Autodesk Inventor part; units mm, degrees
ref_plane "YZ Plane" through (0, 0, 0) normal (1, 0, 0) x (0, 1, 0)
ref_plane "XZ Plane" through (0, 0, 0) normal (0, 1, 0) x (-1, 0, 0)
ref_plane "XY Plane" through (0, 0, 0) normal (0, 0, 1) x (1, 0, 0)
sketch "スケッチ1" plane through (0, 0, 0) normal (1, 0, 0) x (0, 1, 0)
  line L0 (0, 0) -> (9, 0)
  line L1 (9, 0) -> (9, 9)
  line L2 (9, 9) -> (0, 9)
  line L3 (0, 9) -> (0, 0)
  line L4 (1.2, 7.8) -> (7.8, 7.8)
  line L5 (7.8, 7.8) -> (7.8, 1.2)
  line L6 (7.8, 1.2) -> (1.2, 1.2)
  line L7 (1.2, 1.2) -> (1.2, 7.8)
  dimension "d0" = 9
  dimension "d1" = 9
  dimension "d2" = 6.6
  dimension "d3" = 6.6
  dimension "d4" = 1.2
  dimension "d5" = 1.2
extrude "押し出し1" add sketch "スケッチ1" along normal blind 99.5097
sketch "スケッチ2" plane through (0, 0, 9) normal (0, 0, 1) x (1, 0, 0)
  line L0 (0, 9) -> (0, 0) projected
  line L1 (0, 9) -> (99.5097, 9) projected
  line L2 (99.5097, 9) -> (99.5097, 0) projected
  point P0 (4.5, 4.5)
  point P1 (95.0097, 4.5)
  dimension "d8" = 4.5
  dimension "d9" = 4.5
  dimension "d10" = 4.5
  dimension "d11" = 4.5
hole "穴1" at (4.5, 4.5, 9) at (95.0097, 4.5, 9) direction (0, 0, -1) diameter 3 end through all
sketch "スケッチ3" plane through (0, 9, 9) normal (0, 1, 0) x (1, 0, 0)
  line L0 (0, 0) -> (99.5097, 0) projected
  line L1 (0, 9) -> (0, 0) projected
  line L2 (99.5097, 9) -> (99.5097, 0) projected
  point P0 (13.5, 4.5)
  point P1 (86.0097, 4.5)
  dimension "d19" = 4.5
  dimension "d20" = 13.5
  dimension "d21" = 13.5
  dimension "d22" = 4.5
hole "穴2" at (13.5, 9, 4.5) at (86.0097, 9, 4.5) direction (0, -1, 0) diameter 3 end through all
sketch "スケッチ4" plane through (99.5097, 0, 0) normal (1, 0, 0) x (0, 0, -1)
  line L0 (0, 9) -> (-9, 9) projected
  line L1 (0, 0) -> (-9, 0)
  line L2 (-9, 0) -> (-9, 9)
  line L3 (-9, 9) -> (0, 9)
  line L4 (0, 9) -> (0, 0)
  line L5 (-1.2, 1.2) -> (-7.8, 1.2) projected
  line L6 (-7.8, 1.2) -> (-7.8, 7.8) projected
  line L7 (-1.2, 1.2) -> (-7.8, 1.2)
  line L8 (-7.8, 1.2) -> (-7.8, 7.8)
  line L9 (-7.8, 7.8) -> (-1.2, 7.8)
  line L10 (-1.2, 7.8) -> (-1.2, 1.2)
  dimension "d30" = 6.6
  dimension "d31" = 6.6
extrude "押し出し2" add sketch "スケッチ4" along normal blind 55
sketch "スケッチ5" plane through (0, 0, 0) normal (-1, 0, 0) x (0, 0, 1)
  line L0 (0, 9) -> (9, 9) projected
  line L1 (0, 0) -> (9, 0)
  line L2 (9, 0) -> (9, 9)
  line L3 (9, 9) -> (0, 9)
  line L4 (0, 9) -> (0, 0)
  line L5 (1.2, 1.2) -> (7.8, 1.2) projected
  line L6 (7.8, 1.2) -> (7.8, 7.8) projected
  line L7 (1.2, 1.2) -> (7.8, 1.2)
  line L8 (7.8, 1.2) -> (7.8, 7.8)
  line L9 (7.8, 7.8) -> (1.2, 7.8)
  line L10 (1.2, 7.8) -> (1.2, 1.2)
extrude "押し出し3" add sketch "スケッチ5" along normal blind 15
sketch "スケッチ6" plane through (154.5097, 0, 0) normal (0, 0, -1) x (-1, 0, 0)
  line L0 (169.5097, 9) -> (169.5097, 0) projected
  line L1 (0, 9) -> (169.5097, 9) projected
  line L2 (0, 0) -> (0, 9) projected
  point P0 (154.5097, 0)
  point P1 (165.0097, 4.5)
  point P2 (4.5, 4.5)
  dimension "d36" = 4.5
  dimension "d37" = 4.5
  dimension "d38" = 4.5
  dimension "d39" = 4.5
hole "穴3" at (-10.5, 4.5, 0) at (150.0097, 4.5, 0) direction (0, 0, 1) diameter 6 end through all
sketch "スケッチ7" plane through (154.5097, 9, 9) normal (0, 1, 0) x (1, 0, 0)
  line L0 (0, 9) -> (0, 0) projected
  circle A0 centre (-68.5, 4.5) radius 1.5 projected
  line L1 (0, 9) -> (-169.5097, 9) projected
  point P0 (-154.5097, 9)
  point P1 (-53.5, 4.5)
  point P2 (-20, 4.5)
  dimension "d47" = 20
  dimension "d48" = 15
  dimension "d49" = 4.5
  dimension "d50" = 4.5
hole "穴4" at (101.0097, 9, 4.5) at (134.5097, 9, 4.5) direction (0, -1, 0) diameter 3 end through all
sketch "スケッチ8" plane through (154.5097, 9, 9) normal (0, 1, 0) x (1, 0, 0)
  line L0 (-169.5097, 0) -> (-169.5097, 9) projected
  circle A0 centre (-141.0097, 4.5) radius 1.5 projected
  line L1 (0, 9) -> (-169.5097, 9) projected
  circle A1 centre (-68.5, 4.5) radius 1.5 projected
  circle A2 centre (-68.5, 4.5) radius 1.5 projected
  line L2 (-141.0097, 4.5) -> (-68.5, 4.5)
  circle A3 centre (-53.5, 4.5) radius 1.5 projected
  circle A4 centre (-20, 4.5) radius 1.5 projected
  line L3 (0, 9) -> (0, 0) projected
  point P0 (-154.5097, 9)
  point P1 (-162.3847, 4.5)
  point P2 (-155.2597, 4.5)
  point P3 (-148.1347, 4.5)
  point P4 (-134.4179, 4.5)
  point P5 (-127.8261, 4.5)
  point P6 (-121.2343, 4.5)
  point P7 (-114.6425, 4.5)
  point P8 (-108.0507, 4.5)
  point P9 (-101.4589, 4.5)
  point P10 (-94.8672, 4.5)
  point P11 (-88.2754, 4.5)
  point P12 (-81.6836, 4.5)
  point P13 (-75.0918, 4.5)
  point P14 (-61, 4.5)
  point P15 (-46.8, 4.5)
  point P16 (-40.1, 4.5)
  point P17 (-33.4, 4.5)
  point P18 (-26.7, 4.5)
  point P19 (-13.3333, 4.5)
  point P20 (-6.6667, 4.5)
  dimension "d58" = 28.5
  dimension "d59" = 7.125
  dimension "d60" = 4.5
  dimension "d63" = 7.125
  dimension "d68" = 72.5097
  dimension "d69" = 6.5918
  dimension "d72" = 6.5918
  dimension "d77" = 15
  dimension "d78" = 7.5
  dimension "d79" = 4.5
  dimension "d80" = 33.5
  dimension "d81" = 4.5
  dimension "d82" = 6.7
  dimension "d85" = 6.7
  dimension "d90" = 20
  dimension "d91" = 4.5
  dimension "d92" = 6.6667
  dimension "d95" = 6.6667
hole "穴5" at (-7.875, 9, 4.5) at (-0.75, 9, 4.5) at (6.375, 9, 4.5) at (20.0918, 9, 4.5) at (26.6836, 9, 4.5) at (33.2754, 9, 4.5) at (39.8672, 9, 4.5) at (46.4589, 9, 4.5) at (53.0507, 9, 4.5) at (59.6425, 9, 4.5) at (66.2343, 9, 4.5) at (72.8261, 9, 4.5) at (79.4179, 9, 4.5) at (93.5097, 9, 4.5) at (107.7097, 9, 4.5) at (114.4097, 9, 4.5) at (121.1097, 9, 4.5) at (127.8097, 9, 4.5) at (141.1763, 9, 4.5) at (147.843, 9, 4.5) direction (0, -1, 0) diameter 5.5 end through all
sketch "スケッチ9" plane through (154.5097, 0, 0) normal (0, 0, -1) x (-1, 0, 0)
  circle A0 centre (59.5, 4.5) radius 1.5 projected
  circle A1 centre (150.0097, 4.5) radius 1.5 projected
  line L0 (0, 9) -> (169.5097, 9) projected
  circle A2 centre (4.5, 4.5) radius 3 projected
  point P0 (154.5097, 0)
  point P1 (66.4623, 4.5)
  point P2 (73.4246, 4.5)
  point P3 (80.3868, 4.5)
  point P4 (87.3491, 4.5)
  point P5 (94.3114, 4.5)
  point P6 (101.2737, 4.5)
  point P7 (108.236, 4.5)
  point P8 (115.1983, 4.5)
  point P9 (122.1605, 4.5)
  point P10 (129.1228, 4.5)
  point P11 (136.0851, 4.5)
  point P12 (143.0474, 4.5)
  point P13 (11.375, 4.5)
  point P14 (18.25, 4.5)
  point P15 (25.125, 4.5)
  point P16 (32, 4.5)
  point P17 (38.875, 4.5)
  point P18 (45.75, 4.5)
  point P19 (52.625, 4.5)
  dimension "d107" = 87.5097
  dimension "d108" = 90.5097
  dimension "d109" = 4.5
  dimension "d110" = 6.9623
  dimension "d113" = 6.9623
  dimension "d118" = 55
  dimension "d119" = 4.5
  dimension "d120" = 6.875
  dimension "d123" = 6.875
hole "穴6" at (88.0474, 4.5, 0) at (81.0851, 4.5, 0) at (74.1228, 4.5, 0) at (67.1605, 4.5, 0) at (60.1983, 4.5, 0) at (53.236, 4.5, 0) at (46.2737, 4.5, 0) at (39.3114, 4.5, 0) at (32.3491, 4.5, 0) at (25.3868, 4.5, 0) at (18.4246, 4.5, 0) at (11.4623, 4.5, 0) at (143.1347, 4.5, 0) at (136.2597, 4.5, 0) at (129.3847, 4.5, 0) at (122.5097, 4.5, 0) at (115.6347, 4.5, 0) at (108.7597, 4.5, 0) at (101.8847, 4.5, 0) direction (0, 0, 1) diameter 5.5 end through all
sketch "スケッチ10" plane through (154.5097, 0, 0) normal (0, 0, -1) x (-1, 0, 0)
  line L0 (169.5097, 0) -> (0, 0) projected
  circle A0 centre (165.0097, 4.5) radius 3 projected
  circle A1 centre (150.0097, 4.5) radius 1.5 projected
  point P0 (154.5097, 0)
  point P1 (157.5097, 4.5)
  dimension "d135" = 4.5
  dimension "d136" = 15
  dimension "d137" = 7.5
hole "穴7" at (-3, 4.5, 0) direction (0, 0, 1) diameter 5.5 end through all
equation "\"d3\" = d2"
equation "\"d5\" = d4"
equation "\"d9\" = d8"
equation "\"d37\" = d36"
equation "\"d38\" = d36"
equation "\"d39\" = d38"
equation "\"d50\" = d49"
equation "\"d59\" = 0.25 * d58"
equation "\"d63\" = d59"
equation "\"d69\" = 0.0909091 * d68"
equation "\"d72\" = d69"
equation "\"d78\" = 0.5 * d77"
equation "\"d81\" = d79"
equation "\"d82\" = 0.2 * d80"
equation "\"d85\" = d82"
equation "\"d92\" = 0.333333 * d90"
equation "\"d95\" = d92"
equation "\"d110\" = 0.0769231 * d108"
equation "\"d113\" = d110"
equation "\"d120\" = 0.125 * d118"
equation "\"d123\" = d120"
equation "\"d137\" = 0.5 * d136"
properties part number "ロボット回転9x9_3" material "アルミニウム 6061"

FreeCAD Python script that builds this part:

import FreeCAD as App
import Part
import Sketcher

V = App.Vector
Q = App.Units.Quantity

doc = App.newDocument("Part")
body = doc.addObject("PartDesign::Body", "Body")

# Sketch on YZ plane
sketch1 = body.newObject("Sketcher::SketchObject", "Sketch")
sketch1.AttachmentSupport = (doc.getObject("YZ_Plane"), [""])
sketch1.MapMode = "FlatFace"
sketch1.addGeometry([
    Part.LineSegment(V(0, 9, 0), V(0, 0, 0)),  # 0
    Part.LineSegment(V(0, 0, 0), V(9, 0, 0)),  # 1
    Part.LineSegment(V(9, 0, 0), V(9, 9, 0)),  # 2
    Part.LineSegment(V(9, 9, 0), V(0, 9, 0)),  # 3
    Part.LineSegment(V(1.2, 1.2, 0), V(1.2, 7.8, 0)),  # 4
    Part.LineSegment(V(1.2, 7.8, 0), V(7.8, 7.8, 0)),  # 5
    Part.LineSegment(V(7.8, 7.8, 0), V(7.8, 1.2, 0)),  # 6
    Part.LineSegment(V(7.8, 1.2, 0), V(1.2, 1.2, 0)),  # 7
], False)
sketch1.addConstraint([
    Sketcher.Constraint("Coincident", 0, 2, 1, 1),
    Sketcher.Constraint("Coincident", 1, 2, 2, 1),
    Sketcher.Constraint("Coincident", 2, 2, 3, 1),
    Sketcher.Constraint("Coincident", 3, 2, 0, 1),
    Sketcher.Constraint("Coincident", 4, 2, 5, 1),
    Sketcher.Constraint("Coincident", 5, 2, 6, 1),
    Sketcher.Constraint("Coincident", 6, 2, 7, 1),
    Sketcher.Constraint("Coincident", 7, 2, 4, 1),
    Sketcher.Constraint("Vertical", 0),
    Sketcher.Constraint("Horizontal", 1),
    Sketcher.Constraint("Vertical", 2),
    Sketcher.Constraint("Horizontal", 3),
    Sketcher.Constraint("Vertical", 4),
    Sketcher.Constraint("Horizontal", 5),
    Sketcher.Constraint("Vertical", 6),
    Sketcher.Constraint("Horizontal", 7),
    Sketcher.Constraint("Coincident", 0, 2, -1, 1),
    Sketcher.Constraint("Equal", 3, 0),
    Sketcher.Constraint("Equal", 7, 4),
    Sketcher.Constraint("DistanceX", 1, 1, 1, 2, Q("9 mm")),
    Sketcher.Constraint("DistanceX", 5, 1, 5, 2, Q("6.6 mm")),
    Sketcher.Constraint("DistanceX", -1, 1, 4, 2, Q("1.2 mm")),
    Sketcher.Constraint("DistanceY", -1, 1, 6, 2, Q("1.2 mm")),
])
pad1 = body.newObject("PartDesign::Pad", "Pad")
pad1.Profile = sketch1
pad1.Length = 99.5097

# Sketch on XY plane
sketch2 = body.newObject("Sketcher::SketchObject", "Sketch001")
sketch2.AttachmentSupport = (doc.getObject("XY_Plane"), [""])
sketch2.MapMode = "FlatFace"
sketch2.AttachmentOffset = App.Placement(V(0, 0, 9), App.Rotation())
sketch2.addGeometry([
    Part.Circle(V(4.5, 4.5, 0), V(0, 0, 1), 1.5),
    Part.Circle(V(95.0097, 4.5, 0), V(0, 0, 1), 1.5),
], False)
sketch2.addConstraint([
    Sketcher.Constraint("Equal", 0, 1),
    Sketcher.Constraint("Horizontal", 0, 3, 1, 3),
    Sketcher.Constraint("Diameter", 0, Q("3 mm")),
    Sketcher.Constraint("DistanceX", -1, 1, 0, 3, Q("4.5 mm")),
    Sketcher.Constraint("DistanceY", -1, 1, 0, 3, Q("4.5 mm")),
    Sketcher.Constraint("DistanceX", -1, 1, 1, 3, Q("95.0097 mm")),
])
doc.recompute()
hole = body.newObject("PartDesign::Hole", "Hole")
hole.Profile = sketch2
hole.ThreadType = "None"
hole.Diameter = 3
hole.DepthType = "ThroughAll"

# Sketch on XZ plane
sketch3 = body.newObject("Sketcher::SketchObject", "Sketch002")
sketch3.AttachmentSupport = (doc.getObject("XZ_Plane"), [""])
sketch3.MapMode = "FlatFace"
sketch3.AttachmentOffset = App.Placement(V(0, 0, -9), App.Rotation())
sketch3.addGeometry([
    Part.Circle(V(13.5, 4.5, 0), V(0, 0, 1), 1.5),
    Part.Circle(V(86.0097, 4.5, 0), V(0, 0, 1), 1.5),
], False)
sketch3.addConstraint([
    Sketcher.Constraint("Equal", 0, 1),
    Sketcher.Constraint("Horizontal", 0, 3, 1, 3),
    Sketcher.Constraint("Diameter", 0, Q("3 mm")),
    Sketcher.Constraint("DistanceX", -1, 1, 0, 3, Q("13.5 mm")),
    Sketcher.Constraint("DistanceY", -1, 1, 0, 3, Q("4.5 mm")),
    Sketcher.Constraint("DistanceX", -1, 1, 1, 3, Q("86.0097 mm")),
])
doc.recompute()
hole2 = body.newObject("PartDesign::Hole", "Hole001")
hole2.Profile = sketch3
hole2.ThreadType = "None"
hole2.Diameter = 3
hole2.DepthType = "ThroughAll"
hole2.Reversed = True

# Sketch on YZ plane
sketch4 = body.newObject("Sketcher::SketchObject", "Sketch003")
sketch4.AttachmentSupport = (doc.getObject("YZ_Plane"), [""])
sketch4.MapMode = "FlatFace"
sketch4.AttachmentOffset = App.Placement(V(0, 0, 99.5097), App.Rotation())
sketch4.addGeometry([
    Part.LineSegment(V(0, 0, 0), V(9, 0, 0)),  # 0
    Part.LineSegment(V(9, 0, 0), V(9, 9, 0)),  # 1
    Part.LineSegment(V(9, 9, 0), V(0, 9, 0)),  # 2
    Part.LineSegment(V(0, 9, 0), V(0, 0, 0)),  # 3
    Part.LineSegment(V(7.8, 1.2, 0), V(1.2, 1.2, 0)),  # 4
    Part.LineSegment(V(1.2, 1.2, 0), V(1.2, 7.8, 0)),  # 5
    Part.LineSegment(V(1.2, 7.8, 0), V(7.8, 7.8, 0)),  # 6
    Part.LineSegment(V(7.8, 7.8, 0), V(7.8, 1.2, 0)),  # 7
], False)
sketch4.addConstraint([
    Sketcher.Constraint("Coincident", 0, 2, 1, 1),
    Sketcher.Constraint("Coincident", 1, 2, 2, 1),
    Sketcher.Constraint("Coincident", 2, 2, 3, 1),
    Sketcher.Constraint("Coincident", 3, 2, 0, 1),
    Sketcher.Constraint("Coincident", 4, 2, 5, 1),
    Sketcher.Constraint("Coincident", 5, 2, 6, 1),
    Sketcher.Constraint("Coincident", 6, 2, 7, 1),
    Sketcher.Constraint("Coincident", 7, 2, 4, 1),
    Sketcher.Constraint("Horizontal", 0),
    Sketcher.Constraint("Vertical", 1),
    Sketcher.Constraint("Horizontal", 2),
    Sketcher.Constraint("Vertical", 3),
    Sketcher.Constraint("Horizontal", 4),
    Sketcher.Constraint("Vertical", 5),
    Sketcher.Constraint("Horizontal", 6),
    Sketcher.Constraint("Vertical", 7),
    Sketcher.Constraint("Coincident", 3, 2, -1, 1),
    Sketcher.Constraint("Equal", 2, 1),
    Sketcher.Constraint("Equal", 6, 5),
    Sketcher.Constraint("DistanceX", 4, 2, 4, 1, Q("6.6 mm")),
    Sketcher.Constraint("DistanceX", 0, 1, 0, 2, Q("9 mm")),
    Sketcher.Constraint("DistanceX", -1, 1, 4, 2, Q("1.2 mm")),
    Sketcher.Constraint("DistanceY", -1, 1, 4, 2, Q("1.2 mm")),
])
pad2 = body.newObject("PartDesign::Pad", "Pad001")
pad2.Profile = sketch4
pad2.Length = 55

# Sketch on YZ plane
sketch5 = body.newObject("Sketcher::SketchObject", "Sketch004")
sketch5.AttachmentSupport = (doc.getObject("YZ_Plane"), [""])
sketch5.MapMode = "FlatFace"
sketch5.addGeometry([
    Part.LineSegment(V(9, 9, 0), V(9, 0, 0)),  # 0
    Part.LineSegment(V(9, 0, 0), V(0, 0, 0)),  # 1
    Part.LineSegment(V(0, 0, 0), V(0, 9, 0)),  # 2
    Part.LineSegment(V(0, 9, 0), V(9, 9, 0)),  # 3
    Part.LineSegment(V(1.2, 7.8, 0), V(1.2, 1.2, 0)),  # 4
    Part.LineSegment(V(1.2, 1.2, 0), V(7.8, 1.2, 0)),  # 5
    Part.LineSegment(V(7.8, 1.2, 0), V(7.8, 7.8, 0)),  # 6
    Part.LineSegment(V(7.8, 7.8, 0), V(1.2, 7.8, 0)),  # 7
], False)
sketch5.addConstraint([
    Sketcher.Constraint("Coincident", 0, 2, 1, 1),
    Sketcher.Constraint("Coincident", 1, 2, 2, 1),
    Sketcher.Constraint("Coincident", 2, 2, 3, 1),
    Sketcher.Constraint("Coincident", 3, 2, 0, 1),
    Sketcher.Constraint("Coincident", 4, 2, 5, 1),
    Sketcher.Constraint("Coincident", 5, 2, 6, 1),
    Sketcher.Constraint("Coincident", 6, 2, 7, 1),
    Sketcher.Constraint("Coincident", 7, 2, 4, 1),
    Sketcher.Constraint("Vertical", 0),
    Sketcher.Constraint("Horizontal", 1),
    Sketcher.Constraint("Vertical", 2),
    Sketcher.Constraint("Horizontal", 3),
    Sketcher.Constraint("Vertical", 4),
    Sketcher.Constraint("Horizontal", 5),
    Sketcher.Constraint("Vertical", 6),
    Sketcher.Constraint("Horizontal", 7),
    Sketcher.Constraint("Coincident", 1, 2, -1, 1),
    Sketcher.Constraint("Equal", 3, 0),
    Sketcher.Constraint("Equal", 7, 4),
    Sketcher.Constraint("DistanceX", 1, 2, 1, 1, Q("9 mm")),
    Sketcher.Constraint("DistanceX", 5, 1, 5, 2, Q("6.6 mm")),
    Sketcher.Constraint("DistanceX", -1, 1, 4, 2, Q("1.2 mm")),
    Sketcher.Constraint("DistanceY", -1, 1, 4, 2, Q("1.2 mm")),
])
pad3 = body.newObject("PartDesign::Pad", "Pad002")
pad3.Profile = sketch5
pad3.Length = 15
pad3.Reversed = True

# Sketch on XY plane
sketch6 = body.newObject("Sketcher::SketchObject", "Sketch005")
sketch6.AttachmentSupport = (doc.getObject("XY_Plane"), [""])
sketch6.MapMode = "FlatFace"
sketch6.addGeometry([
    Part.Circle(V(-10.5, 4.5, 0), V(0, 0, 1), 3),
    Part.Circle(V(150.0097, 4.5, 0), V(0, 0, 1), 3),
], False)
sketch6.addConstraint([
    Sketcher.Constraint("Equal", 0, 1),
    Sketcher.Constraint("Horizontal", 0, 3, 1, 3),
    Sketcher.Constraint("Diameter", 0, Q("6 mm")),
    Sketcher.Constraint("DistanceX", 0, 3, -1, 1, Q("10.5 mm")),
    Sketcher.Constraint("DistanceY", -1, 1, 0, 3, Q("4.5 mm")),
    Sketcher.Constraint("DistanceX", -1, 1, 1, 3, Q("150.0097 mm")),
])
doc.recompute()
hole3 = body.newObject("PartDesign::Hole", "Hole002")
hole3.Profile = sketch6
hole3.ThreadType = "None"
hole3.Diameter = 6
hole3.DepthType = "ThroughAll"
hole3.Reversed = True

# Sketch on XZ plane
sketch7 = body.newObject("Sketcher::SketchObject", "Sketch006")
sketch7.AttachmentSupport = (doc.getObject("XZ_Plane"), [""])
sketch7.MapMode = "FlatFace"
sketch7.AttachmentOffset = App.Placement(V(0, 0, -9), App.Rotation())
sketch7.addGeometry([
    Part.Circle(V(101.0097, 4.5, 0), V(0, 0, 1), 1.5),
    Part.Circle(V(134.5097, 4.5, 0), V(0, 0, 1), 1.5),
], False)
sketch7.addConstraint([
    Sketcher.Constraint("Equal", 0, 1),
    Sketcher.Constraint("Horizontal", 0, 3, 1, 3),
    Sketcher.Constraint("Diameter", 0, Q("3 mm")),
    Sketcher.Constraint("DistanceY", -1, 1, 0, 3, Q("4.5 mm")),
    Sketcher.Constraint("DistanceX", 0, 3, 1, 3, Q("33.5 mm")),
    Sketcher.Constraint("DistanceX", -1, 1, 0, 3, Q("101.0097 mm")),
])
doc.recompute()
hole4 = body.newObject("PartDesign::Hole", "Hole003")
hole4.Profile = sketch7
hole4.ThreadType = "None"
hole4.Diameter = 3
hole4.DepthType = "ThroughAll"
hole4.Reversed = True

# Sketch on XZ plane
sketch8 = body.newObject("Sketcher::SketchObject", "Sketch007")
sketch8.AttachmentSupport = (doc.getObject("XZ_Plane"), [""])
sketch8.MapMode = "FlatFace"
sketch8.AttachmentOffset = App.Placement(V(0, 0, -9), App.Rotation())
sketch8.addGeometry([
    Part.Circle(V(-7.875, 4.5, 0), V(0, 0, 1), 2.75),  # 0
    Part.Circle(V(-0.75, 4.5, 0), V(0, 0, 1), 2.75),  # 1
    Part.Circle(V(6.375, 4.5, 0), V(0, 0, 1), 2.75),  # 2
    Part.Circle(V(20.0918, 4.5, 0), V(0, 0, 1), 2.75),  # 3
    Part.Circle(V(26.6836, 4.5, 0), V(0, 0, 1), 2.75),  # 4
    Part.Circle(V(33.2754, 4.5, 0), V(0, 0, 1), 2.75),  # 5
    Part.Circle(V(39.8672, 4.5, 0), V(0, 0, 1), 2.75),  # 6
    Part.Circle(V(46.4589, 4.5, 0), V(0, 0, 1), 2.75),  # 7
    Part.Circle(V(53.0507, 4.5, 0), V(0, 0, 1), 2.75),  # 8
    Part.Circle(V(59.6425, 4.5, 0), V(0, 0, 1), 2.75),  # 9
    Part.Circle(V(66.2343, 4.5, 0), V(0, 0, 1), 2.75),  # 10
    Part.Circle(V(72.8261, 4.5, 0), V(0, 0, 1), 2.75),  # 11
    Part.Circle(V(79.4179, 4.5, 0), V(0, 0, 1), 2.75),  # 12
    Part.Circle(V(93.5097, 4.5, 0), V(0, 0, 1), 2.75),  # 13
    Part.Circle(V(107.7097, 4.5, 0), V(0, 0, 1), 2.75),  # 14
    Part.Circle(V(114.4097, 4.5, 0), V(0, 0, 1), 2.75),  # 15
    Part.Circle(V(121.1097, 4.5, 0), V(0, 0, 1), 2.75),  # 16
    Part.Circle(V(127.8097, 4.5, 0), V(0, 0, 1), 2.75),  # 17
    Part.Circle(V(141.1763, 4.5, 0), V(0, 0, 1), 2.75),  # 18
    Part.Circle(V(147.843, 4.5, 0), V(0, 0, 1), 2.75),  # 19
], False)
sketch8.addConstraint([
    Sketcher.Constraint("Equal", 0, 1),
    Sketcher.Constraint("Equal", 1, 2),
    Sketcher.Constraint("Equal", 2, 3),
    Sketcher.Constraint("Equal", 3, 4),
    Sketcher.Constraint("Equal", 4, 5),
    Sketcher.Constraint("Equal", 5, 6),
    Sketcher.Constraint("Equal", 6, 7),
    Sketcher.Constraint("Equal", 7, 8),
    Sketcher.Constraint("Equal", 8, 9),
    Sketcher.Constraint("Equal", 9, 10),
    Sketcher.Constraint("Equal", 10, 11),
    Sketcher.Constraint("Equal", 11, 12),
    Sketcher.Constraint("Equal", 12, 13),
    Sketcher.Constraint("Equal", 13, 14),
    Sketcher.Constraint("Equal", 14, 15),
    Sketcher.Constraint("Equal", 15, 16),
    Sketcher.Constraint("Equal", 16, 17),
    Sketcher.Constraint("Equal", 17, 18),
    Sketcher.Constraint("Equal", 18, 19),
    Sketcher.Constraint("Horizontal", 0, 3, 1, 3),
    Sketcher.Constraint("Horizontal", 1, 3, 2, 3),
    Sketcher.Constraint("Horizontal", 2, 3, 3, 3),
    Sketcher.Constraint("Horizontal", 3, 3, 4, 3),
    Sketcher.Constraint("Horizontal", 4, 3, 5, 3),
    Sketcher.Constraint("Horizontal", 5, 3, 6, 3),
    Sketcher.Constraint("Horizontal", 6, 3, 7, 3),
    Sketcher.Constraint("Horizontal", 7, 3, 8, 3),
    Sketcher.Constraint("Horizontal", 8, 3, 9, 3),
    Sketcher.Constraint("Horizontal", 9, 3, 10, 3),
    Sketcher.Constraint("Horizontal", 10, 3, 11, 3),
    Sketcher.Constraint("Horizontal", 11, 3, 12, 3),
    Sketcher.Constraint("Horizontal", 12, 3, 13, 3),
    Sketcher.Constraint("Horizontal", 13, 3, 14, 3),
    Sketcher.Constraint("Horizontal", 14, 3, 15, 3),
    Sketcher.Constraint("Horizontal", 15, 3, 16, 3),
    Sketcher.Constraint("Horizontal", 16, 3, 17, 3),
    Sketcher.Constraint("Horizontal", 17, 3, 18, 3),
    Sketcher.Constraint("Horizontal", 18, 3, 19, 3),
    Sketcher.Constraint("Diameter", 0, Q("5.5 mm")),
    Sketcher.Constraint("DistanceY", -1, 1, 0, 3, Q("4.5 mm")),
    Sketcher.Constraint("DistanceX", 13, 3, 14, 3, Q("14.2 mm")),
    Sketcher.Constraint("DistanceX", 14, 3, 15, 3, Q("6.7 mm")),
    Sketcher.Constraint("DistanceX", 15, 3, 16, 3, Q("6.7 mm")),
    Sketcher.Constraint("DistanceX", 16, 3, 17, 3, Q("6.7 mm")),
    Sketcher.Constraint("DistanceX", 1, 3, -1, 1, Q("0.75 mm")),
    Sketcher.Constraint("DistanceX", 0, 3, 2, 3, Q("14.25 mm")),
    Sketcher.Constraint("DistanceX", 0, 3, -1, 1, Q("7.875 mm")),
    Sketcher.Constraint("DistanceX", -1, 1, 7, 3, Q("46.459 mm")),
    Sketcher.Constraint("DistanceX", -1, 1, 11, 3, Q("72.826 mm")),
    Sketcher.Constraint("DistanceX", -1, 1, 12, 3, Q("79.418 mm")),
    Sketcher.Constraint("DistanceX", -1, 1, 19, 3, Q("147.843 mm")),
    Sketcher.Constraint("DistanceX", 3, 3, 7, 3, Q("26.367 mm")),
    Sketcher.Constraint("DistanceX", 4, 3, 8, 3, Q("26.367 mm")),
    Sketcher.Constraint("DistanceX", 3, 3, 8, 3, Q("32.959 mm")),
    Sketcher.Constraint("DistanceX", 5, 3, 9, 3, Q("26.367 mm")),
    Sketcher.Constraint("DistanceX", 4, 3, 9, 3, Q("32.959 mm")),
    Sketcher.Constraint("DistanceX", 6, 3, 10, 3, Q("26.367 mm")),
    Sketcher.Constraint("DistanceX", 5, 3, 10, 3, Q("32.959 mm")),
    Sketcher.Constraint("DistanceX", 8, 3, 13, 3, Q("40.459 mm")),
    Sketcher.Constraint("DistanceX", -1, 1, 18, 3, Q("141.1763 mm")),
])
doc.recompute()
hole5 = body.newObject("PartDesign::Hole", "Hole004")
hole5.Profile = sketch8
hole5.ThreadType = "None"
hole5.Diameter = 5.5
hole5.DepthType = "ThroughAll"
hole5.Reversed = True

# Sketch on XY plane
sketch9 = body.newObject("Sketcher::SketchObject", "Sketch008")
sketch9.AttachmentSupport = (doc.getObject("XY_Plane"), [""])
sketch9.MapMode = "FlatFace"
sketch9.addGeometry([
    Part.Circle(V(88.0474, 4.5, 0), V(0, 0, 1), 2.75),  # 0
    Part.Circle(V(81.0851, 4.5, 0), V(0, 0, 1), 2.75),  # 1
    Part.Circle(V(74.1228, 4.5, 0), V(0, 0, 1), 2.75),  # 2
    Part.Circle(V(67.1605, 4.5, 0), V(0, 0, 1), 2.75),  # 3
    Part.Circle(V(60.1983, 4.5, 0), V(0, 0, 1), 2.75),  # 4
    Part.Circle(V(53.236, 4.5, 0), V(0, 0, 1), 2.75),  # 5
    Part.Circle(V(46.2737, 4.5, 0), V(0, 0, 1), 2.75),  # 6
    Part.Circle(V(39.3114, 4.5, 0), V(0, 0, 1), 2.75),  # 7
    Part.Circle(V(32.3491, 4.5, 0), V(0, 0, 1), 2.75),  # 8
    Part.Circle(V(25.3868, 4.5, 0), V(0, 0, 1), 2.75),  # 9
    Part.Circle(V(18.4246, 4.5, 0), V(0, 0, 1), 2.75),  # 10
    Part.Circle(V(11.4623, 4.5, 0), V(0, 0, 1), 2.75),  # 11
    Part.Circle(V(143.1347, 4.5, 0), V(0, 0, 1), 2.75),  # 12
    Part.Circle(V(136.2597, 4.5, 0), V(0, 0, 1), 2.75),  # 13
    Part.Circle(V(129.3847, 4.5, 0), V(0, 0, 1), 2.75),  # 14
    Part.Circle(V(122.5097, 4.5, 0), V(0, 0, 1), 2.75),  # 15
    Part.Circle(V(115.6347, 4.5, 0), V(0, 0, 1), 2.75),  # 16
    Part.Circle(V(108.7597, 4.5, 0), V(0, 0, 1), 2.75),  # 17
    Part.Circle(V(101.8847, 4.5, 0), V(0, 0, 1), 2.75),  # 18
], False)
sketch9.addConstraint([
    Sketcher.Constraint("Equal", 0, 1),
    Sketcher.Constraint("Equal", 1, 2),
    Sketcher.Constraint("Equal", 2, 3),
    Sketcher.Constraint("Equal", 3, 4),
    Sketcher.Constraint("Equal", 4, 5),
    Sketcher.Constraint("Equal", 5, 6),
    Sketcher.Constraint("Equal", 6, 7),
    Sketcher.Constraint("Equal", 7, 8),
    Sketcher.Constraint("Equal", 8, 9),
    Sketcher.Constraint("Equal", 9, 10),
    Sketcher.Constraint("Equal", 10, 11),
    Sketcher.Constraint("Equal", 11, 12),
    Sketcher.Constraint("Equal", 12, 13),
    Sketcher.Constraint("Equal", 13, 14),
    Sketcher.Constraint("Equal", 14, 15),
    Sketcher.Constraint("Equal", 15, 16),
    Sketcher.Constraint("Equal", 16, 17),
    Sketcher.Constraint("Equal", 17, 18),
    Sketcher.Constraint("Horizontal", 0, 3, 1, 3),
    Sketcher.Constraint("Horizontal", 1, 3, 2, 3),
    Sketcher.Constraint("Horizontal", 2, 3, 3, 3),
    Sketcher.Constraint("Horizontal", 3, 3, 4, 3),
    Sketcher.Constraint("Horizontal", 4, 3, 5, 3),
    Sketcher.Constraint("Horizontal", 5, 3, 6, 3),
    Sketcher.Constraint("Horizontal", 6, 3, 7, 3),
    Sketcher.Constraint("Horizontal", 7, 3, 8, 3),
    Sketcher.Constraint("Horizontal", 8, 3, 9, 3),
    Sketcher.Constraint("Horizontal", 9, 3, 10, 3),
    Sketcher.Constraint("Horizontal", 10, 3, 11, 3),
    Sketcher.Constraint("Horizontal", 11, 3, 12, 3),
    Sketcher.Constraint("Horizontal", 12, 3, 13, 3),
    Sketcher.Constraint("Horizontal", 13, 3, 14, 3),
    Sketcher.Constraint("Horizontal", 14, 3, 15, 3),
    Sketcher.Constraint("Horizontal", 15, 3, 16, 3),
    Sketcher.Constraint("Horizontal", 16, 3, 17, 3),
    Sketcher.Constraint("Horizontal", 17, 3, 18, 3),
    Sketcher.Constraint("Diameter", 0, Q("5.5 mm")),
    Sketcher.Constraint("DistanceY", -1, 1, 0, 3, Q("4.5 mm")),
    Sketcher.Constraint("DistanceX", 16, 3, 12, 3, Q("27.5 mm")),
    Sketcher.Constraint("DistanceX", 17, 3, 13, 3, Q("27.5 mm")),
    Sketcher.Constraint("DistanceX", 14, 3, 12, 3, Q("13.75 mm")),
    Sketcher.Constraint("DistanceX", 15, 3, 13, 3, Q("13.75 mm")),
    Sketcher.Constraint("DistanceX", 18, 3, 16, 3, Q("13.75 mm")),
    Sketcher.Constraint("DistanceX", -1, 1, 1, 3, Q("81.085 mm")),
    Sketcher.Constraint("DistanceX", -1, 1, 5, 3, Q("53.236 mm")),
    Sketcher.Constraint("DistanceX", -1, 1, 8, 3, Q("32.349 mm")),
    Sketcher.Constraint("DistanceX", 3, 3, 0, 3, Q("20.887 mm")),
    Sketcher.Constraint("DistanceX", 4, 3, 0, 3, Q("27.849 mm")),
    Sketcher.Constraint("DistanceX", 6, 3, 2, 3, Q("27.849 mm")),
    Sketcher.Constraint("DistanceX", 7, 3, 4, 3, Q("20.887 mm")),
    Sketcher.Constraint("DistanceX", 9, 3, 6, 3, Q("20.887 mm")),
    Sketcher.Constraint("DistanceX", 10, 3, 6, 3, Q("27.849 mm")),
    Sketcher.Constraint("DistanceX", 11, 3, 7, 3, Q("27.849 mm")),
    Sketcher.Constraint("DistanceX", 2, 3, 12, 3, Q("69.012 mm")),
    Sketcher.Constraint("DistanceX", 13, 3, 12, 3, Q("6.875 mm")),
    Sketcher.Constraint("DistanceX", -1, 1, 0, 3, Q("88.0474 mm")),
    Sketcher.Constraint("DistanceX", -1, 1, 2, 3, Q("74.1228 mm")),
])
doc.recompute()
hole6 = body.newObject("PartDesign::Hole", "Hole005")
hole6.Profile = sketch9
hole6.ThreadType = "None"
hole6.Diameter = 5.5
hole6.DepthType = "ThroughAll"
hole6.Reversed = True

# Sketch on XY plane
sketch10 = body.newObject("Sketcher::SketchObject", "Sketch009")
sketch10.AttachmentSupport = (doc.getObject("XY_Plane"), [""])
sketch10.MapMode = "FlatFace"
sketch10.addGeometry(Part.Circle(V(-3, 4.5, 0), V(0, 0, 1), 2.75), False)
sketch10.addConstraint([
    Sketcher.Constraint("Diameter", 0, Q("5.5 mm")),
    Sketcher.Constraint("DistanceX", 0, 3, -1, 1, Q("3 mm")),
    Sketcher.Constraint("DistanceY", -1, 1, 0, 3, Q("4.5 mm")),
])
doc.recompute()
hole7 = body.newObject("PartDesign::Hole", "Hole006")
hole7.Profile = sketch10
hole7.ThreadType = "None"
hole7.Diameter = 5.5
hole7.DepthType = "ThroughAll"
hole7.Reversed = True

doc.recompute()
